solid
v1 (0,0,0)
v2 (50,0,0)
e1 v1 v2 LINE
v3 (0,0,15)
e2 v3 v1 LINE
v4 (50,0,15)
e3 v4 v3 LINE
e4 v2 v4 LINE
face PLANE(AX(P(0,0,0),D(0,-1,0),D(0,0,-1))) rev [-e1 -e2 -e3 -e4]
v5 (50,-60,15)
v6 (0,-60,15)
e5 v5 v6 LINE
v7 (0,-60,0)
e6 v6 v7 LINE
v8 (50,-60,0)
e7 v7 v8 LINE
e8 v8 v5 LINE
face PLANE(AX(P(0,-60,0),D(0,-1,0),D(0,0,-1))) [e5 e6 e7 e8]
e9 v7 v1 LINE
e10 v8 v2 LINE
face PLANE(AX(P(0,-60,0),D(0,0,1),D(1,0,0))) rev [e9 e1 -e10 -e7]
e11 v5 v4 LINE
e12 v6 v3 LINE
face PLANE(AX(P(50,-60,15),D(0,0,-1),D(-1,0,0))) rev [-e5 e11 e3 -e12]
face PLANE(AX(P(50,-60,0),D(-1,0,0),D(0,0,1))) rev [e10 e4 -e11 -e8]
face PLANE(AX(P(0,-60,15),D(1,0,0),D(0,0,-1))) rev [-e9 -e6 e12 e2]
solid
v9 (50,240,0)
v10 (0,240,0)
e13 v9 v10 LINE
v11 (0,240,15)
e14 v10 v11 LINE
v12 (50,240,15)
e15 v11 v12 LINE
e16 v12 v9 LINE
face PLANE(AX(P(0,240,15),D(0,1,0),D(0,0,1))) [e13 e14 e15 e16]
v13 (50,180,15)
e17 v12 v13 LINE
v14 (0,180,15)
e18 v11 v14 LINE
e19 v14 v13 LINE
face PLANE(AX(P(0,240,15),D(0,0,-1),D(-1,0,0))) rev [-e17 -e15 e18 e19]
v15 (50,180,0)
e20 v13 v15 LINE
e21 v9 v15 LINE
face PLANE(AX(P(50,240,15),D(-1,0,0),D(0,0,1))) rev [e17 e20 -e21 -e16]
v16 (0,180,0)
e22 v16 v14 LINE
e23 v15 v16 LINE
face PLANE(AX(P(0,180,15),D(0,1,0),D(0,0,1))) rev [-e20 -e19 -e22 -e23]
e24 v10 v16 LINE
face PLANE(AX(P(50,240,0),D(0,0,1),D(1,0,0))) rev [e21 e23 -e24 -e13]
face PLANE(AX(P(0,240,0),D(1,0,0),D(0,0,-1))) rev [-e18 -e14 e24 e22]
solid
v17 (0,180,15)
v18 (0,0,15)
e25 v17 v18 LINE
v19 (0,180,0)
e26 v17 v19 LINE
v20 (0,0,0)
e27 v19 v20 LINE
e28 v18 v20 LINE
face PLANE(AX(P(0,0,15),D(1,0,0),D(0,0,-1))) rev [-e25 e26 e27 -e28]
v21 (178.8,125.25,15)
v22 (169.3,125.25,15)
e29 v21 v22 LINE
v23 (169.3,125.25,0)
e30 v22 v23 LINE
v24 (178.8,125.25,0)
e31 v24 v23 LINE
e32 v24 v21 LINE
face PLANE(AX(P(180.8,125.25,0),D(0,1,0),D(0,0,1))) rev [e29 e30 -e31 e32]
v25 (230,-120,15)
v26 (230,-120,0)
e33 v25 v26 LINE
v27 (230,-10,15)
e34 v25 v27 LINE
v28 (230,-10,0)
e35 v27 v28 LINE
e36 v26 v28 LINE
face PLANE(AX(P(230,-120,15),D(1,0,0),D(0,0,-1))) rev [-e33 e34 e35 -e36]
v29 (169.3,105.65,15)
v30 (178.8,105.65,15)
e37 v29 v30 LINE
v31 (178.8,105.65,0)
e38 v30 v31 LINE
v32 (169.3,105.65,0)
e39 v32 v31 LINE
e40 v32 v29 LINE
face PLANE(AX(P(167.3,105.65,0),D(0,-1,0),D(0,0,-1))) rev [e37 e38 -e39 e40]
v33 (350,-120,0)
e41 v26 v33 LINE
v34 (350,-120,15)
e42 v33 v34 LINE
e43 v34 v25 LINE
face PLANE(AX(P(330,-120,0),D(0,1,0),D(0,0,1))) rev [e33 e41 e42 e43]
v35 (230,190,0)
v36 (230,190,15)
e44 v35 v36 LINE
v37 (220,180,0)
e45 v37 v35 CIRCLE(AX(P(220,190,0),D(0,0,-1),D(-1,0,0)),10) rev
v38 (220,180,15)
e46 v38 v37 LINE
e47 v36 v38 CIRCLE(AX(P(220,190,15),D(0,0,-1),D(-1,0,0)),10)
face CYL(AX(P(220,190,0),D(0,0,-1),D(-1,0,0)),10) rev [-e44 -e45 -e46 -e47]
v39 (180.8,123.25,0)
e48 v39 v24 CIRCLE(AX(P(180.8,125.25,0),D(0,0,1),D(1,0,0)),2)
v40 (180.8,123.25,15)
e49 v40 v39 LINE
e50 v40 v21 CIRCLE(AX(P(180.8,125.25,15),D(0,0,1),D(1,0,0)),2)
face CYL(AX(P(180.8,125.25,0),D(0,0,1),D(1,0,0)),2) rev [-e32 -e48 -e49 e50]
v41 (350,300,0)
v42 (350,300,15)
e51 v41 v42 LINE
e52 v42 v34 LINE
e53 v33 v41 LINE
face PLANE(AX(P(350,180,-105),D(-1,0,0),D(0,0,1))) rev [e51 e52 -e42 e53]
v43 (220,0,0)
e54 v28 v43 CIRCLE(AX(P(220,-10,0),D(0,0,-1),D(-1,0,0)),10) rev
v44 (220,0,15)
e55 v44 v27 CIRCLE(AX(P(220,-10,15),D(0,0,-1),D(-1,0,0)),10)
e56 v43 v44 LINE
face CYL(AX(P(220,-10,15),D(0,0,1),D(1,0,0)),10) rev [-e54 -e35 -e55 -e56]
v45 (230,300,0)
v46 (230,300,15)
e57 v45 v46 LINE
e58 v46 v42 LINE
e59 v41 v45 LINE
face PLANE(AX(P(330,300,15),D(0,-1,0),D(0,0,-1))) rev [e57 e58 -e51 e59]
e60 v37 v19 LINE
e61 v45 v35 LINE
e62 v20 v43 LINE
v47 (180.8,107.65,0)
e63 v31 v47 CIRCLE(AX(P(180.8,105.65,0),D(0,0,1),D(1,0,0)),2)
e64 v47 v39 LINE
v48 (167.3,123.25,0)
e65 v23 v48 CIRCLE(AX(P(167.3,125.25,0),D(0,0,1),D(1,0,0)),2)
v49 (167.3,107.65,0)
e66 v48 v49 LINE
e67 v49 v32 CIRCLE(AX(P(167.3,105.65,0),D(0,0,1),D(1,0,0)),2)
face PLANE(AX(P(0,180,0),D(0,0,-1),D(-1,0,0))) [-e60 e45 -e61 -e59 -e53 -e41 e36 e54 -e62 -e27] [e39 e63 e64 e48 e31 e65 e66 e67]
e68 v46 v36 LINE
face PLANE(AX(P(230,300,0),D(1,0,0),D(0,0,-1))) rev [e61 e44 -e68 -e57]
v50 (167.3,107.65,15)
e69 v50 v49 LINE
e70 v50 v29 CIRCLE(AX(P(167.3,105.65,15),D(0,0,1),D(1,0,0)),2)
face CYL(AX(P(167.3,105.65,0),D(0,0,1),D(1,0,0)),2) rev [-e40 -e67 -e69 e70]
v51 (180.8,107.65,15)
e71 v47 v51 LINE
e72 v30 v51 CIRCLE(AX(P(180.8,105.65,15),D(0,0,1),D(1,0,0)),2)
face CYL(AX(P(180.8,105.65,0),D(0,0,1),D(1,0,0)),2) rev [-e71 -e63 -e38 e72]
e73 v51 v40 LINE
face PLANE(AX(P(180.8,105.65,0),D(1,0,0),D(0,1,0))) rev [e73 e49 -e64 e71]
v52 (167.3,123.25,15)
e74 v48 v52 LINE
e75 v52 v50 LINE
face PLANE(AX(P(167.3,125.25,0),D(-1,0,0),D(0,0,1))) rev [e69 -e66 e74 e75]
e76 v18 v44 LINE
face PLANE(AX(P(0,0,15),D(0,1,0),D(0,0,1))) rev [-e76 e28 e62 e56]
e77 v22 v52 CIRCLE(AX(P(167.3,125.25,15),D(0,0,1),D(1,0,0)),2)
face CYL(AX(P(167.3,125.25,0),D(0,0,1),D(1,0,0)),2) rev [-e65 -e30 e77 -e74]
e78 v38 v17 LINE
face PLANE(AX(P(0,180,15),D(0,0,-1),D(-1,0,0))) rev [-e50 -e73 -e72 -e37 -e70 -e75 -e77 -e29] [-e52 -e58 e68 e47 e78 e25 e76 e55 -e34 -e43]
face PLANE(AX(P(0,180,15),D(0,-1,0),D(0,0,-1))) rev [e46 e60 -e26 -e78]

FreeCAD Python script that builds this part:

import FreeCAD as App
import Part
import Sketcher

V = App.Vector


def edges_at(feature, points):
    """Names of the edges that pass closest to the given points."""
    edges = feature.Shape.Edges
    near = lambda p: min(range(len(edges)), key=lambda i: edges[i].distToShape(Part.Vertex(*p))[0])
    return sorted({f"Edge{near(p) + 1}" for p in points})


def add_polygon(sketch, points):
    """Adds a closed chain of lines whose ends are joined by coincident constraints."""
    first, n = sketch.GeometryCount, len(points)
    for a, b in zip(points, points[1:] + points[:1]):
        sketch.addGeometry(Part.LineSegment(App.Vector(*a, 0), App.Vector(*b, 0)), False)
    for i in range(n):
        sketch.addConstraint(Sketcher.Constraint("Coincident", first + i, 2, first + (i + 1) % n, 1))

doc = App.newDocument("Part")
body = doc.addObject("PartDesign::Body", "Body")

sketch1 = body.newObject("Sketcher::SketchObject", "Sketch")
sketch1.AttachmentSupport = (doc.getObject("XY_Plane"), [""])
sketch1.MapMode = "FlatFace"
add_polygon(sketch1, [(0, 180), (0, 0), (400, 0), (400, 180)])
sketch1.addConstraint(Sketcher.Constraint("Vertical", 0))
sketch1.addConstraint(Sketcher.Constraint("Horizontal", 1))
sketch1.addConstraint(Sketcher.Constraint("Vertical", 2))
sketch1.addConstraint(Sketcher.Constraint("Horizontal", 3))
sketch1.addConstraint(Sketcher.Constraint("Coincident", 0, 2, -1, 1))
sketch1.addConstraint(Sketcher.Constraint("DistanceX", 1, 1, 1, 2, 400.0))
sketch1.addConstraint(Sketcher.Constraint("DistanceY", 0, 2, 0, 1, 180.0))
pad1 = body.newObject("PartDesign::Pad", "Pad")
pad1.Profile = sketch1
pad1.Length = 15

sketch2 = body.newObject("Sketcher::SketchObject", "Sketch001")
sketch2.AttachmentSupport = (doc.getObject("XY_Plane"), [""])
sketch2.MapMode = "FlatFace"
sketch2.AttachmentOffset = App.Placement(V(0, 0, 15), App.Rotation())
add_polygon(sketch2, [(169, 123), (169, 108), (179, 108), (179, 123)])
sketch2.addConstraint(Sketcher.Constraint("Vertical", 0))
sketch2.addConstraint(Sketcher.Constraint("Horizontal", 1))
sketch2.addConstraint(Sketcher.Constraint("Vertical", 2))
sketch2.addConstraint(Sketcher.Constraint("Horizontal", 3))
sketch2.addConstraint(Sketcher.Constraint("DistanceX", 1, 1, 1, 2, 9.5))
sketch2.addConstraint(Sketcher.Constraint("DistanceY", 0, 2, 0, 1, 15.6))
sketch2.addConstraint(Sketcher.Constraint("DistanceX", -1, 1, 0, 2, 169.3))
sketch2.addConstraint(Sketcher.Constraint("DistanceY", -1, 1, 0, 2, 107.65))
pocket1 = body.newObject("PartDesign::Pocket", "Pocket")
pocket1.Profile = sketch2
pocket1.Type = "ThroughAll"

sketch3 = body.newObject("Sketcher::SketchObject", "Sketch002")
sketch3.AttachmentSupport = (doc.getObject("XY_Plane"), [""])
sketch3.MapMode = "FlatFace"
sketch3.AttachmentOffset = App.Placement(V(0, 0, 15), App.Rotation())
add_polygon(sketch3, [(167, 125), (167, 106), (181, 106), (181, 125)])
sketch3.addConstraint(Sketcher.Constraint("Vertical", 0))
sketch3.addConstraint(Sketcher.Constraint("Horizontal", 1))
sketch3.addConstraint(Sketcher.Constraint("Vertical", 2))
sketch3.addConstraint(Sketcher.Constraint("Horizontal", 3))
sketch3.addConstraint(Sketcher.Constraint("DistanceX", 1, 1, 1, 2, 13.5))
sketch3.addConstraint(Sketcher.Constraint("DistanceY", 0, 2, 0, 1, 19.6))
sketch3.addConstraint(Sketcher.Constraint("DistanceX", -1, 1, 0, 2, 167.3))
sketch3.addConstraint(Sketcher.Constraint("DistanceY", -1, 1, 0, 2, 105.65))
pocket2 = body.newObject("PartDesign::Pocket", "Pocket001")
pocket2.Profile = sketch3
pocket2.Type = "ThroughAll"

sketch4 = body.newObject("Sketcher::SketchObject", "Sketch003")
sketch4.AttachmentSupport = (doc.getObject("XY_Plane"), [""])
sketch4.MapMode = "FlatFace"
sketch4.AttachmentOffset = App.Placement(V(0, 0, 15), App.Rotation())
sketch4.addGeometry(Part.Circle(V(167.3, 125.2, 0), V(0, 0, 1), 2), False)
sketch4.addGeometry(Part.Circle(V(167.3, 105.7, 0), V(0, 0, 1), 2), False)
sketch4.addGeometry(Part.Circle(V(180.8, 105.7, 0), V(0, 0, 1), 2), False)
sketch4.addGeometry(Part.Circle(V(180.8, 125.2, 0), V(0, 0, 1), 2), False)
sketch4.addConstraint(Sketcher.Constraint("Equal", 0, 1))
sketch4.addConstraint(Sketcher.Constraint("Equal", 1, 2))
sketch4.addConstraint(Sketcher.Constraint("Equal", 2, 3))
sketch4.addConstraint(Sketcher.Constraint("Horizontal", 1, 3, 2, 3))
sketch4.addConstraint(Sketcher.Constraint("Horizontal", 0, 3, 3, 3))
sketch4.addConstraint(Sketcher.Constraint("Vertical", 0, 3, 1, 3))
sketch4.addConstraint(Sketcher.Constraint("Vertical", 2, 3, 3, 3))
sketch4.addConstraint(Sketcher.Constraint("Diameter", 0, 4.0))
sketch4.addConstraint(Sketcher.Constraint("DistanceX", -1, 1, 0, 3, 167.3))
sketch4.addConstraint(Sketcher.Constraint("DistanceX", -1, 1, 2, 3, 180.8))
sketch4.addConstraint(Sketcher.Constraint("DistanceY", 1, 3, 0, 3, 19.6))
sketch4.addConstraint(Sketcher.Constraint("DistanceY", -1, 1, 0, 3, 125.25))
pocket3 = body.newObject("PartDesign::Pocket", "Pocket002")
pocket3.Profile = sketch4
pocket3.Type = "ThroughAll"

sketch5 = body.newObject("Sketcher::SketchObject", "Sketch004")
sketch5.AttachmentSupport = (doc.getObject("XZ_Plane"), [""])
sketch5.MapMode = "FlatFace"
sketch5.AttachmentOffset = App.Placement(V(0, 0, -180), App.Rotation())
add_polygon(sketch5, [(230, 0), (230, 15), (330, 15), (330, 0)])
sketch5.addConstraint(Sketcher.Constraint("Vertical", 0))
sketch5.addConstraint(Sketcher.Constraint("Horizontal", 1))
sketch5.addConstraint(Sketcher.Constraint("Vertical", 2))
sketch5.addConstraint(Sketcher.Constraint("Horizontal", 3))
sketch5.addConstraint(Sketcher.Constraint("PointOnObject", 2, 2, -1))
sketch5.addConstraint(Sketcher.Constraint("DistanceX", 1, 1, 1, 2, 100.0))
sketch5.addConstraint(Sketcher.Constraint("DistanceY", 0, 1, 0, 2, 15.0))
sketch5.addConstraint(Sketcher.Constraint("DistanceX", -1, 1, 0, 2, 230.0))
pad2 = body.newObject("PartDesign::Pad", "Pad001")
pad2.Profile = sketch5
pad2.Length = 120
pad2.Reversed = True

sketch6 = body.newObject("Sketcher::SketchObject", "Sketch005")
sketch6.AttachmentSupport = (doc.getObject("XZ_Plane"), [""])
sketch6.MapMode = "FlatFace"
add_polygon(sketch6, [(230, 15), (230, 0), (330, 0), (330, 15)])
sketch6.addConstraint(Sketcher.Constraint("Vertical", 0))
sketch6.addConstraint(Sketcher.Constraint("Horizontal", 1))
sketch6.addConstraint(Sketcher.Constraint("Vertical", 2))
sketch6.addConstraint(Sketcher.Constraint("Horizontal", 3))
sketch6.addConstraint(Sketcher.Constraint("PointOnObject", 0, 2, -1))
sketch6.addConstraint(Sketcher.Constraint("DistanceX", 1, 1, 1, 2, 100.0))
sketch6.addConstraint(Sketcher.Constraint("DistanceY", 0, 2, 0, 1, 15.0))
sketch6.addConstraint(Sketcher.Constraint("DistanceX", -1, 1, 0, 2, 230.0))
pad3 = body.newObject("PartDesign::Pad", "Pad002")
pad3.Profile = sketch6
pad3.Length = 120
doc.recompute()

fillet = body.newObject("PartDesign::Fillet", "Fillet")
fillet.Base = (pad3, edges_at(pad3, [(230, 0, 7.5), (230, 180, 7.5)]))
fillet.Radius = 10

sketch7 = body.newObject("Sketcher::SketchObject", "Sketch006")
sketch7.AttachmentSupport = (doc.getObject("XY_Plane"), [""])
sketch7.MapMode = "FlatFace"
sketch7.AttachmentOffset = App.Placement(V(0, 0, 15), App.Rotation())
add_polygon(sketch7, [(350, 180), (350, 0), (400, 0), (400, 180)])
sketch7.addConstraint(Sketcher.Constraint("Vertical", 0))
sketch7.addConstraint(Sketcher.Constraint("Horizontal", 1))
sketch7.addConstraint(Sketcher.Constraint("Vertical", 2))
sketch7.addConstraint(Sketcher.Constraint("Horizontal", 3))
sketch7.addConstraint(Sketcher.Constraint("PointOnObject", 0, 2, -1))
sketch7.addConstraint(Sketcher.Constraint("DistanceX", 1, 1, 1, 2, 50.0))
sketch7.addConstraint(Sketcher.Constraint("DistanceY", 0, 2, 0, 1, 180.0))
sketch7.addConstraint(Sketcher.Constraint("DistanceX", -1, 1, 0, 2, 350.0))
pocket4 = body.newObject("PartDesign::Pocket", "Pocket003")
pocket4.Profile = sketch7
pocket4.Length = 120
doc.recompute()

fillet2 = body.newObject("PartDesign::Fillet", "Fillet001")
fillet2.Base = (pocket4, edges_at(pocket4, [(330, 0, 7.5), (330, 180, 7.5)]))
fillet2.Radius = 10

sketch8 = body.newObject("Sketcher::SketchObject", "Sketch007")
sketch8.AttachmentSupport = (doc.getObject("XY_Plane"), [""])
sketch8.MapMode = "FlatFace"
sketch8.AttachmentOffset = App.Placement(V(0, 0, 15), App.Rotation())
add_polygon(sketch8, [(330, 0), (330, -120), (350, -120), (350, 0)])
add_polygon(sketch8, [(330, 300), (330, 180), (350, 180), (350, 300)])
sketch8.addConstraint(Sketcher.Constraint("Vertical", 0))
sketch8.addConstraint(Sketcher.Constraint("Horizontal", 1))
sketch8.addConstraint(Sketcher.Constraint("Vertical", 2))
sketch8.addConstraint(Sketcher.Constraint("Horizontal", 3))
sketch8.addConstraint(Sketcher.Constraint("Vertical", 4))
sketch8.addConstraint(Sketcher.Constraint("Horizontal", 5))
sketch8.addConstraint(Sketcher.Constraint("Vertical", 6))
sketch8.addConstraint(Sketcher.Constraint("Horizontal", 7))
sketch8.addConstraint(Sketcher.Constraint("PointOnObject", 2, 2, -1))
sketch8.addConstraint(Sketcher.Constraint("Vertical", 3, 2, 4, 2))
sketch8.addConstraint(Sketcher.Constraint("Vertical", 2, 2, 5, 2))
sketch8.addConstraint(Sketcher.Constraint("Equal", 2, 4))
sketch8.addConstraint(Sketcher.Constraint("DistanceX", 1, 1, 1, 2, 20.0))
sketch8.addConstraint(Sketcher.Constraint("DistanceY", 0, 2, 0, 1, 120.0))
sketch8.addConstraint(Sketcher.Constraint("DistanceX", -1, 1, 0, 2, 330.0))
sketch8.addConstraint(Sketcher.Constraint("DistanceY", -1, 1, 4, 2, 180.0))
pad4 = body.newObject("PartDesign::Pad", "Pad003")
pad4.Profile = sketch8
pad4.Length = 15
pad4.Reversed = True
body2 = doc.addObject("PartDesign::Body", "Body001")

sketch9 = body2.newObject("Sketcher::SketchObject", "Sketch008")
sketch9.AttachmentSupport = (doc.getObject("XZ_Plane001"), [""])
sketch9.MapMode = "FlatFace"
sketch9.AttachmentOffset = App.Placement(V(0, 0, -180), App.Rotation())
add_polygon(sketch9, [(0, 0), (0, 15), (50, 15), (50, 0)])
sketch9.addConstraint(Sketcher.Constraint("Vertical", 0))
sketch9.addConstraint(Sketcher.Constraint("Horizontal", 1))
sketch9.addConstraint(Sketcher.Constraint("Vertical", 2))
sketch9.addConstraint(Sketcher.Constraint("Horizontal", 3))
sketch9.addConstraint(Sketcher.Constraint("Coincident", 3, 2, -1, 1))
sketch9.addConstraint(Sketcher.Constraint("DistanceX", 1, 1, 1, 2, 50.0))
sketch9.addConstraint(Sketcher.Constraint("DistanceY", 0, 1, 0, 2, 15.0))
pad5 = body2.newObject("PartDesign::Pad", "Pad004")
pad5.Profile = sketch9
pad5.Length = 60
pad5.Reversed = True
body3 = doc.addObject("PartDesign::Body", "Body002")

sketch10 = body3.newObject("Sketcher::SketchObject", "Sketch009")
sketch10.AttachmentSupport = (doc.getObject("XZ_Plane002"), [""])
sketch10.MapMode = "FlatFace"
add_polygon(sketch10, [(0, 15), (0, 0), (50, 0), (50, 15)])
sketch10.addConstraint(Sketcher.Constraint("Vertical", 0))
sketch10.addConstraint(Sketcher.Constraint("Horizontal", 1))
sketch10.addConstraint(Sketcher.Constraint("Vertical", 2))
sketch10.addConstraint(Sketcher.Constraint("Horizontal", 3))
sketch10.addConstraint(Sketcher.Constraint("Coincident", 0, 2, -1, 1))
sketch10.addConstraint(Sketcher.Constraint("DistanceX", 1, 1, 1, 2, 50.0))
sketch10.addConstraint(Sketcher.Constraint("DistanceY", 0, 2, 0, 1, 15.0))
pad6 = body3.newObject("PartDesign::Pad", "Pad005")
pad6.Profile = sketch10
pad6.Length = 60

doc.recompute()
